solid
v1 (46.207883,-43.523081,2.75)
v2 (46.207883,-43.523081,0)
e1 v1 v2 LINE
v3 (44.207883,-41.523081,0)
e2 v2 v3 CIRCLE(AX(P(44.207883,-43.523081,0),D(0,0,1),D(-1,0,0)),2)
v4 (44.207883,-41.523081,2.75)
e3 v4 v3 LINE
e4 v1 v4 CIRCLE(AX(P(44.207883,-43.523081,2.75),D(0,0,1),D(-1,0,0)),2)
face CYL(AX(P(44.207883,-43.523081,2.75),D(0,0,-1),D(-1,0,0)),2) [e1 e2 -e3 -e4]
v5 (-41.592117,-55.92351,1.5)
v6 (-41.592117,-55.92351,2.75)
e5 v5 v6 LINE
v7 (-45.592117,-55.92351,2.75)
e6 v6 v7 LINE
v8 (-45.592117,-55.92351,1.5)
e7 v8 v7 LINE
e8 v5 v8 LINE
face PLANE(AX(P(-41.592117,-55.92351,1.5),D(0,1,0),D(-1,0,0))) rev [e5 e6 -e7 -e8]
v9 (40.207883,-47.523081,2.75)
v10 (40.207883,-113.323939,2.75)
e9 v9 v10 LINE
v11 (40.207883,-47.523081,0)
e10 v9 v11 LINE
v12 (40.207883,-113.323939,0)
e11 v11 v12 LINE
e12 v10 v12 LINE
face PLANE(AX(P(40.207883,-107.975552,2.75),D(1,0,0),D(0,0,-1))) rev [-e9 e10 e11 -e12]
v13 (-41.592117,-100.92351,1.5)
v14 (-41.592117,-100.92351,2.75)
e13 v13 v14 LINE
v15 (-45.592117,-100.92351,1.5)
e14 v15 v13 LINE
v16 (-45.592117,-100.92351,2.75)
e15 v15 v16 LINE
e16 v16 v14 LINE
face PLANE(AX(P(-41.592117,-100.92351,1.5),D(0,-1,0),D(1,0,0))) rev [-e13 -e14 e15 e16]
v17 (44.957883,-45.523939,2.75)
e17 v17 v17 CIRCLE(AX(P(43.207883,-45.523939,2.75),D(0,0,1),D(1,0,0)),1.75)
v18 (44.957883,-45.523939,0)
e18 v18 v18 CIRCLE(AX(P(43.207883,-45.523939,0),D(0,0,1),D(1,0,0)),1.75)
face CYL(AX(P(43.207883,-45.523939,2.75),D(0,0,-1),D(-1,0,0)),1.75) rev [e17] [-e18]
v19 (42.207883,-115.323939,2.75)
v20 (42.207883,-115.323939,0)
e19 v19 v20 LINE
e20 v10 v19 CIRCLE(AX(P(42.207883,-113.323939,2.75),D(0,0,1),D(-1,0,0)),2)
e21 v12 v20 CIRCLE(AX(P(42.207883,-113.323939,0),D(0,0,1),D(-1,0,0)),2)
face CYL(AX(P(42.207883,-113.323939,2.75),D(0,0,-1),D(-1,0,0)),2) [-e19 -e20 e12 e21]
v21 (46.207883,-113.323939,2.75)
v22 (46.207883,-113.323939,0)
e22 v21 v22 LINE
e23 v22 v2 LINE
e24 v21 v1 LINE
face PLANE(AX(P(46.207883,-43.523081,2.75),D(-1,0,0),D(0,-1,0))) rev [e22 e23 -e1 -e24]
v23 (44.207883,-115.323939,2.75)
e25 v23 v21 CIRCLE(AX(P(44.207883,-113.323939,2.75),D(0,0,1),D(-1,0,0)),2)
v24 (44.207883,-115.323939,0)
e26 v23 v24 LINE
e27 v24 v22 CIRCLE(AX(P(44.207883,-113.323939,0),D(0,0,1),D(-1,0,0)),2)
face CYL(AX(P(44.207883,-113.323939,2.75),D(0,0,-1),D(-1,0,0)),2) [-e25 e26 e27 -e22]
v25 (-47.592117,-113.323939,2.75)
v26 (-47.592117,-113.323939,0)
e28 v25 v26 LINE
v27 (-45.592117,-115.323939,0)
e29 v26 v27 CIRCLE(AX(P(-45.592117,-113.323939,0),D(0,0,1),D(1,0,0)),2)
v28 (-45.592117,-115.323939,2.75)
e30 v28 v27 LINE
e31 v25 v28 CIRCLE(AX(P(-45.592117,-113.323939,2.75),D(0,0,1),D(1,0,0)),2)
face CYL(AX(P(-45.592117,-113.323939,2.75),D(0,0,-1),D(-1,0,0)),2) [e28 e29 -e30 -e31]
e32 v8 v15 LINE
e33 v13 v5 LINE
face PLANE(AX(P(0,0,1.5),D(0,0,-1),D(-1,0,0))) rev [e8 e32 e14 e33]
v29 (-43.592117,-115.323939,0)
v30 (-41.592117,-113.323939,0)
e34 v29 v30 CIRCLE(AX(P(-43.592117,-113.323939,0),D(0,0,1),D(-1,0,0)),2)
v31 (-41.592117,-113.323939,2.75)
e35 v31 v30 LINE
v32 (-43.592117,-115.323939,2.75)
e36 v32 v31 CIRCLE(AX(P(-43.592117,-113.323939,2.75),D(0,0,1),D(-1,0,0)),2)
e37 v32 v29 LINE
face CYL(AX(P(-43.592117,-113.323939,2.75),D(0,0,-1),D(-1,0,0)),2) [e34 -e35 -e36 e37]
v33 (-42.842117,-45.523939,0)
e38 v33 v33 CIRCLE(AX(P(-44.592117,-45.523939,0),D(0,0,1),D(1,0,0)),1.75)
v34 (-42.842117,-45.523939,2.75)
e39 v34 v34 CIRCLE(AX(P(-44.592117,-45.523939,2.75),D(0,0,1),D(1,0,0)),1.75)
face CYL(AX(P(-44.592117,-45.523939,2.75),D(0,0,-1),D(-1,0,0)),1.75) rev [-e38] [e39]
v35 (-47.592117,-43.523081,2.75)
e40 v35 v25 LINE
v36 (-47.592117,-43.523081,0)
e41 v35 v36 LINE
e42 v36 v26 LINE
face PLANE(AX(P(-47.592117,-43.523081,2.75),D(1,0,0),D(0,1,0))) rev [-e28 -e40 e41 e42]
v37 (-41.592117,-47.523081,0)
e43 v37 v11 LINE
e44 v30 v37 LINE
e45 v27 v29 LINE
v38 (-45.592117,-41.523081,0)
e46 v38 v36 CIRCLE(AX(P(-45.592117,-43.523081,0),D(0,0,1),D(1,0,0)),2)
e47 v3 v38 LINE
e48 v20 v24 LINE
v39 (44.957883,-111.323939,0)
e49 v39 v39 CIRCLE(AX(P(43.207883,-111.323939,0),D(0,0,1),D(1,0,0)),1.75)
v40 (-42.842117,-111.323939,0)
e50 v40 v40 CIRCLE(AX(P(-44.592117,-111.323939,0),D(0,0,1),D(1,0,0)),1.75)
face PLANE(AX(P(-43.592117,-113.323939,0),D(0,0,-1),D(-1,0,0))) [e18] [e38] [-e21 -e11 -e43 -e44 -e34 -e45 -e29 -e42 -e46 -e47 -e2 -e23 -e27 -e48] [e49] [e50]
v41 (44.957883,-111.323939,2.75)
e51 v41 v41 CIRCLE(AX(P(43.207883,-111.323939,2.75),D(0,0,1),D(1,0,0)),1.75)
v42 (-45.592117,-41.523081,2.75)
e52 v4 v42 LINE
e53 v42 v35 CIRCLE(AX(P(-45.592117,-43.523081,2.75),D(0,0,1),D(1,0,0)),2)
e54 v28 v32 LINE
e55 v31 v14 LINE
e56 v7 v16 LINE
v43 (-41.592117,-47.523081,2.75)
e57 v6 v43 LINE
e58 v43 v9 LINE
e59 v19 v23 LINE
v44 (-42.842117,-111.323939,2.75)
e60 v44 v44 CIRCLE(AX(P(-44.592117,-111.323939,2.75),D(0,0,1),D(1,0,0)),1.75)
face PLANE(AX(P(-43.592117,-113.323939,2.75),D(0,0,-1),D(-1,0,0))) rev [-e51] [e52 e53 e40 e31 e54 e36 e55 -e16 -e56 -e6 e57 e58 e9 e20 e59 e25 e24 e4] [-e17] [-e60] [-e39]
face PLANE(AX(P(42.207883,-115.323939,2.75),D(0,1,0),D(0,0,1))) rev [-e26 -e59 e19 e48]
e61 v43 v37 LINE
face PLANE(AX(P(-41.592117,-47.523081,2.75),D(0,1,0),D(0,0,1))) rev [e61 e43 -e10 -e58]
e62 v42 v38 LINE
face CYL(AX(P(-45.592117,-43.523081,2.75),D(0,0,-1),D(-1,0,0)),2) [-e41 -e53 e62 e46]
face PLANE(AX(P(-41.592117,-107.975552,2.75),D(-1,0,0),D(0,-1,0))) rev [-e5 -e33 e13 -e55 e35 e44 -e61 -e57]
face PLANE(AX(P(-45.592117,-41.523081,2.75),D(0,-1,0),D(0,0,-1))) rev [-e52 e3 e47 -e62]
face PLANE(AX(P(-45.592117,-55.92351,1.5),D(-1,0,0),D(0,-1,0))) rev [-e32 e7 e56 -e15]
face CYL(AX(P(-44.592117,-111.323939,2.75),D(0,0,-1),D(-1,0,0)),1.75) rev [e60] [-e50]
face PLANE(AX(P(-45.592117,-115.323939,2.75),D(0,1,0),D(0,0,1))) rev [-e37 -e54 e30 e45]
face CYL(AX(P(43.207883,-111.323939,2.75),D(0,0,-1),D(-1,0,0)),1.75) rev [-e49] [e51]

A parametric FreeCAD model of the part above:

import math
import FreeCAD as App
import Part
import Sketcher

V = App.Vector
Q = App.Units.Quantity

doc = App.newDocument("Part")
body = doc.addObject("PartDesign::Body", "Body")

# Sketch on XY plane
sketch1 = body.newObject("Sketcher::SketchObject", "Sketch")
sketch1.AttachmentSupport = (doc.getObject("XY_Plane"), [""])
sketch1.MapMode = "FlatFace"
sketch1.addGeometry([
    Part.ArcOfCircle(Part.Circle(V(-43.6, -113.3, 0), V(0, 0, 1), 2), math.radians(-90), math.radians(0)),  # 0
    Part.LineSegment(V(-41.6, -113.3, 0), V(-41.6, -47.5, 0)),  # 1
    Part.LineSegment(V(-41.6, -47.5, 0), V(40.2, -47.5, 0)),  # 2
    Part.LineSegment(V(40.2, -47.5, 0), V(40.2, -113.3, 0)),  # 3
    Part.ArcOfCircle(Part.Circle(V(42.2, -113.3, 0), V(0, 0, 1), 2), math.radians(180), math.radians(270)),  # 4
    Part.LineSegment(V(42.2, -115.3, 0), V(44.2, -115.3, 0)),  # 5
    Part.ArcOfCircle(Part.Circle(V(44.2, -113.3, 0), V(0, 0, 1), 2), math.radians(-90), math.radians(0)),  # 6
    Part.LineSegment(V(46.2, -113.3, 0), V(46.2, -43.5, 0)),  # 7
    Part.ArcOfCircle(Part.Circle(V(44.2, -43.5, 0), V(0, 0, 1), 2), math.radians(0), math.radians(90)),  # 8
    Part.LineSegment(V(44.2, -41.5, 0), V(-45.6, -41.5, 0)),  # 9
    Part.ArcOfCircle(Part.Circle(V(-45.6, -43.5, 0), V(0, 0, 1), 2), math.radians(90), math.radians(180)),  # 10
    Part.LineSegment(V(-47.6, -43.5, 0), V(-47.6, -113.3, 0)),  # 11
    Part.ArcOfCircle(Part.Circle(V(-45.6, -113.3, 0), V(0, 0, 1), 2), math.radians(180), math.radians(270)),  # 12
    Part.LineSegment(V(-45.6, -115.3, 0), V(-43.6, -115.3, 0)),  # 13
    Part.Circle(V(43.2, -111.3, 0), V(0, 0, 1), 1.8),  # 14
    Part.Circle(V(-44.6, -111.3, 0), V(0, 0, 1), 1.8),  # 15
    Part.Circle(V(43.2, -45.5, 0), V(0, 0, 1), 1.8),  # 16
    Part.Circle(V(-44.6, -45.5, 0), V(0, 0, 1), 1.8),  # 17
], False)
sketch1.addConstraint([
    Sketcher.Constraint("Tangent", 0, 2, 1, 1),
    Sketcher.Constraint("Coincident", 1, 2, 2, 1),
    Sketcher.Constraint("Coincident", 2, 2, 3, 1),
    Sketcher.Constraint("Tangent", 3, 2, 4, 1),
    Sketcher.Constraint("Tangent", 4, 2, 5, 1),
    Sketcher.Constraint("Tangent", 5, 2, 6, 1),
    Sketcher.Constraint("Tangent", 6, 2, 7, 1),
    Sketcher.Constraint("Tangent", 7, 2, 8, 1),
    Sketcher.Constraint("Tangent", 8, 2, 9, 1),
    Sketcher.Constraint("Tangent", 9, 2, 10, 1),
    Sketcher.Constraint("Tangent", 10, 2, 11, 1),
    Sketcher.Constraint("Tangent", 11, 2, 12, 1),
    Sketcher.Constraint("Tangent", 12, 2, 13, 1),
    Sketcher.Constraint("Tangent", 13, 2, 0, 1),
    Sketcher.Constraint("Vertical", 1),
    Sketcher.Constraint("Horizontal", 2),
    Sketcher.Constraint("Vertical", 3),
    Sketcher.Constraint("Horizontal", 5),
    Sketcher.Constraint("Vertical", 7),
    Sketcher.Constraint("Horizontal", 9),
    Sketcher.Constraint("Vertical", 11),
    Sketcher.Constraint("Horizontal", 13),
    Sketcher.Constraint("Equal", 0, 4),
    Sketcher.Constraint("Equal", 4, 6),
    Sketcher.Constraint("Equal", 6, 8),
    Sketcher.Constraint("Equal", 8, 10),
    Sketcher.Constraint("Equal", 10, 12),
    Sketcher.Constraint("Equal", 14, 15),
    Sketcher.Constraint("Equal", 15, 16),
    Sketcher.Constraint("Equal", 16, 17),
    Sketcher.Constraint("Horizontal", 0, 3, 4, 3),
    Sketcher.Constraint("Horizontal", 14, 3, 15, 3),
    Sketcher.Constraint("Horizontal", 16, 3, 17, 3),
    Sketcher.Constraint("Vertical", 14, 3, 16, 3),
    Sketcher.Constraint("Vertical", 15, 3, 17, 3),
    Sketcher.Constraint("Equal", 5, 13),
    Sketcher.Constraint("Radius", 0, Q("2 mm")),
    Sketcher.Constraint("Diameter", 14, Q("3.5 mm")),
    Sketcher.Constraint("DistanceX", 5, 1, 5, 2, Q("2 mm")),
    Sketcher.Constraint("DistanceX", 2, 1, 2, 2, Q("81.8 mm")),
    Sketcher.Constraint("DistanceX", 14, 3, 6, 3, Q("1 mm")),
    Sketcher.Constraint("DistanceY", 6, 3, 14, 3, Q("2 mm")),
    Sketcher.Constraint("DistanceX", 15, 3, 0, 3, Q("1 mm")),
    Sketcher.Constraint("DistanceY", 1, 2, 10, 3, Q("4 mm")),
    Sketcher.Constraint("DistanceY", 14, 3, 16, 3, Q("65.8 mm")),
    Sketcher.Constraint("DistanceY", 1, 1, 1, 2, Q("65.800858 mm")),
    Sketcher.Constraint("DistanceY", 0, 3, -1, 1, Q("113.323939 mm")),
    Sketcher.Constraint("DistanceX", 0, 3, -1, 1, Q("43.592117 mm")),
])
pad1 = body.newObject("PartDesign::Pad", "Pad")
pad1.Profile = sketch1
pad1.Length = 2.75

# Sketch on XY plane
sketch2 = body.newObject("Sketcher::SketchObject", "Sketch001")
sketch2.AttachmentSupport = (doc.getObject("XY_Plane"), [""])
sketch2.MapMode = "FlatFace"
sketch2.AttachmentOffset = App.Placement(V(0, 0, 2.75), App.Rotation())
sketch2.addGeometry([
    Part.LineSegment(V(-45.6, -55.9, 0), V(-45.6, -100.9, 0)),
    Part.LineSegment(V(-45.6, -100.9, 0), V(-41.6, -100.9, 0)),
    Part.LineSegment(V(-41.6, -100.9, 0), V(-41.6, -55.9, 0)),
    Part.LineSegment(V(-41.6, -55.9, 0), V(-45.6, -55.9, 0)),
], False)
sketch2.addConstraint([
    Sketcher.Constraint("Coincident", 0, 2, 1, 1),
    Sketcher.Constraint("Coincident", 1, 2, 2, 1),
    Sketcher.Constraint("Coincident", 2, 2, 3, 1),
    Sketcher.Constraint("Coincident", 3, 2, 0, 1),
    Sketcher.Constraint("Vertical", 0),
    Sketcher.Constraint("Horizontal", 1),
    Sketcher.Constraint("Vertical", 2),
    Sketcher.Constraint("Horizontal", 3),
    Sketcher.Constraint("DistanceX", 1, 1, 1, 2, Q("4 mm")),
    Sketcher.Constraint("DistanceY", 0, 2, 0, 1, Q("45 mm")),
    Sketcher.Constraint("DistanceY", 0, 2, -1, 1, Q("100.92351 mm")),
    Sketcher.Constraint("DistanceX", 0, 2, -1, 1, Q("45.592117 mm")),
])
pocket1 = body.newObject("PartDesign::Pocket", "Pocket")
pocket1.Profile = sketch2
pocket1.Length = 1.25

doc.recompute()
